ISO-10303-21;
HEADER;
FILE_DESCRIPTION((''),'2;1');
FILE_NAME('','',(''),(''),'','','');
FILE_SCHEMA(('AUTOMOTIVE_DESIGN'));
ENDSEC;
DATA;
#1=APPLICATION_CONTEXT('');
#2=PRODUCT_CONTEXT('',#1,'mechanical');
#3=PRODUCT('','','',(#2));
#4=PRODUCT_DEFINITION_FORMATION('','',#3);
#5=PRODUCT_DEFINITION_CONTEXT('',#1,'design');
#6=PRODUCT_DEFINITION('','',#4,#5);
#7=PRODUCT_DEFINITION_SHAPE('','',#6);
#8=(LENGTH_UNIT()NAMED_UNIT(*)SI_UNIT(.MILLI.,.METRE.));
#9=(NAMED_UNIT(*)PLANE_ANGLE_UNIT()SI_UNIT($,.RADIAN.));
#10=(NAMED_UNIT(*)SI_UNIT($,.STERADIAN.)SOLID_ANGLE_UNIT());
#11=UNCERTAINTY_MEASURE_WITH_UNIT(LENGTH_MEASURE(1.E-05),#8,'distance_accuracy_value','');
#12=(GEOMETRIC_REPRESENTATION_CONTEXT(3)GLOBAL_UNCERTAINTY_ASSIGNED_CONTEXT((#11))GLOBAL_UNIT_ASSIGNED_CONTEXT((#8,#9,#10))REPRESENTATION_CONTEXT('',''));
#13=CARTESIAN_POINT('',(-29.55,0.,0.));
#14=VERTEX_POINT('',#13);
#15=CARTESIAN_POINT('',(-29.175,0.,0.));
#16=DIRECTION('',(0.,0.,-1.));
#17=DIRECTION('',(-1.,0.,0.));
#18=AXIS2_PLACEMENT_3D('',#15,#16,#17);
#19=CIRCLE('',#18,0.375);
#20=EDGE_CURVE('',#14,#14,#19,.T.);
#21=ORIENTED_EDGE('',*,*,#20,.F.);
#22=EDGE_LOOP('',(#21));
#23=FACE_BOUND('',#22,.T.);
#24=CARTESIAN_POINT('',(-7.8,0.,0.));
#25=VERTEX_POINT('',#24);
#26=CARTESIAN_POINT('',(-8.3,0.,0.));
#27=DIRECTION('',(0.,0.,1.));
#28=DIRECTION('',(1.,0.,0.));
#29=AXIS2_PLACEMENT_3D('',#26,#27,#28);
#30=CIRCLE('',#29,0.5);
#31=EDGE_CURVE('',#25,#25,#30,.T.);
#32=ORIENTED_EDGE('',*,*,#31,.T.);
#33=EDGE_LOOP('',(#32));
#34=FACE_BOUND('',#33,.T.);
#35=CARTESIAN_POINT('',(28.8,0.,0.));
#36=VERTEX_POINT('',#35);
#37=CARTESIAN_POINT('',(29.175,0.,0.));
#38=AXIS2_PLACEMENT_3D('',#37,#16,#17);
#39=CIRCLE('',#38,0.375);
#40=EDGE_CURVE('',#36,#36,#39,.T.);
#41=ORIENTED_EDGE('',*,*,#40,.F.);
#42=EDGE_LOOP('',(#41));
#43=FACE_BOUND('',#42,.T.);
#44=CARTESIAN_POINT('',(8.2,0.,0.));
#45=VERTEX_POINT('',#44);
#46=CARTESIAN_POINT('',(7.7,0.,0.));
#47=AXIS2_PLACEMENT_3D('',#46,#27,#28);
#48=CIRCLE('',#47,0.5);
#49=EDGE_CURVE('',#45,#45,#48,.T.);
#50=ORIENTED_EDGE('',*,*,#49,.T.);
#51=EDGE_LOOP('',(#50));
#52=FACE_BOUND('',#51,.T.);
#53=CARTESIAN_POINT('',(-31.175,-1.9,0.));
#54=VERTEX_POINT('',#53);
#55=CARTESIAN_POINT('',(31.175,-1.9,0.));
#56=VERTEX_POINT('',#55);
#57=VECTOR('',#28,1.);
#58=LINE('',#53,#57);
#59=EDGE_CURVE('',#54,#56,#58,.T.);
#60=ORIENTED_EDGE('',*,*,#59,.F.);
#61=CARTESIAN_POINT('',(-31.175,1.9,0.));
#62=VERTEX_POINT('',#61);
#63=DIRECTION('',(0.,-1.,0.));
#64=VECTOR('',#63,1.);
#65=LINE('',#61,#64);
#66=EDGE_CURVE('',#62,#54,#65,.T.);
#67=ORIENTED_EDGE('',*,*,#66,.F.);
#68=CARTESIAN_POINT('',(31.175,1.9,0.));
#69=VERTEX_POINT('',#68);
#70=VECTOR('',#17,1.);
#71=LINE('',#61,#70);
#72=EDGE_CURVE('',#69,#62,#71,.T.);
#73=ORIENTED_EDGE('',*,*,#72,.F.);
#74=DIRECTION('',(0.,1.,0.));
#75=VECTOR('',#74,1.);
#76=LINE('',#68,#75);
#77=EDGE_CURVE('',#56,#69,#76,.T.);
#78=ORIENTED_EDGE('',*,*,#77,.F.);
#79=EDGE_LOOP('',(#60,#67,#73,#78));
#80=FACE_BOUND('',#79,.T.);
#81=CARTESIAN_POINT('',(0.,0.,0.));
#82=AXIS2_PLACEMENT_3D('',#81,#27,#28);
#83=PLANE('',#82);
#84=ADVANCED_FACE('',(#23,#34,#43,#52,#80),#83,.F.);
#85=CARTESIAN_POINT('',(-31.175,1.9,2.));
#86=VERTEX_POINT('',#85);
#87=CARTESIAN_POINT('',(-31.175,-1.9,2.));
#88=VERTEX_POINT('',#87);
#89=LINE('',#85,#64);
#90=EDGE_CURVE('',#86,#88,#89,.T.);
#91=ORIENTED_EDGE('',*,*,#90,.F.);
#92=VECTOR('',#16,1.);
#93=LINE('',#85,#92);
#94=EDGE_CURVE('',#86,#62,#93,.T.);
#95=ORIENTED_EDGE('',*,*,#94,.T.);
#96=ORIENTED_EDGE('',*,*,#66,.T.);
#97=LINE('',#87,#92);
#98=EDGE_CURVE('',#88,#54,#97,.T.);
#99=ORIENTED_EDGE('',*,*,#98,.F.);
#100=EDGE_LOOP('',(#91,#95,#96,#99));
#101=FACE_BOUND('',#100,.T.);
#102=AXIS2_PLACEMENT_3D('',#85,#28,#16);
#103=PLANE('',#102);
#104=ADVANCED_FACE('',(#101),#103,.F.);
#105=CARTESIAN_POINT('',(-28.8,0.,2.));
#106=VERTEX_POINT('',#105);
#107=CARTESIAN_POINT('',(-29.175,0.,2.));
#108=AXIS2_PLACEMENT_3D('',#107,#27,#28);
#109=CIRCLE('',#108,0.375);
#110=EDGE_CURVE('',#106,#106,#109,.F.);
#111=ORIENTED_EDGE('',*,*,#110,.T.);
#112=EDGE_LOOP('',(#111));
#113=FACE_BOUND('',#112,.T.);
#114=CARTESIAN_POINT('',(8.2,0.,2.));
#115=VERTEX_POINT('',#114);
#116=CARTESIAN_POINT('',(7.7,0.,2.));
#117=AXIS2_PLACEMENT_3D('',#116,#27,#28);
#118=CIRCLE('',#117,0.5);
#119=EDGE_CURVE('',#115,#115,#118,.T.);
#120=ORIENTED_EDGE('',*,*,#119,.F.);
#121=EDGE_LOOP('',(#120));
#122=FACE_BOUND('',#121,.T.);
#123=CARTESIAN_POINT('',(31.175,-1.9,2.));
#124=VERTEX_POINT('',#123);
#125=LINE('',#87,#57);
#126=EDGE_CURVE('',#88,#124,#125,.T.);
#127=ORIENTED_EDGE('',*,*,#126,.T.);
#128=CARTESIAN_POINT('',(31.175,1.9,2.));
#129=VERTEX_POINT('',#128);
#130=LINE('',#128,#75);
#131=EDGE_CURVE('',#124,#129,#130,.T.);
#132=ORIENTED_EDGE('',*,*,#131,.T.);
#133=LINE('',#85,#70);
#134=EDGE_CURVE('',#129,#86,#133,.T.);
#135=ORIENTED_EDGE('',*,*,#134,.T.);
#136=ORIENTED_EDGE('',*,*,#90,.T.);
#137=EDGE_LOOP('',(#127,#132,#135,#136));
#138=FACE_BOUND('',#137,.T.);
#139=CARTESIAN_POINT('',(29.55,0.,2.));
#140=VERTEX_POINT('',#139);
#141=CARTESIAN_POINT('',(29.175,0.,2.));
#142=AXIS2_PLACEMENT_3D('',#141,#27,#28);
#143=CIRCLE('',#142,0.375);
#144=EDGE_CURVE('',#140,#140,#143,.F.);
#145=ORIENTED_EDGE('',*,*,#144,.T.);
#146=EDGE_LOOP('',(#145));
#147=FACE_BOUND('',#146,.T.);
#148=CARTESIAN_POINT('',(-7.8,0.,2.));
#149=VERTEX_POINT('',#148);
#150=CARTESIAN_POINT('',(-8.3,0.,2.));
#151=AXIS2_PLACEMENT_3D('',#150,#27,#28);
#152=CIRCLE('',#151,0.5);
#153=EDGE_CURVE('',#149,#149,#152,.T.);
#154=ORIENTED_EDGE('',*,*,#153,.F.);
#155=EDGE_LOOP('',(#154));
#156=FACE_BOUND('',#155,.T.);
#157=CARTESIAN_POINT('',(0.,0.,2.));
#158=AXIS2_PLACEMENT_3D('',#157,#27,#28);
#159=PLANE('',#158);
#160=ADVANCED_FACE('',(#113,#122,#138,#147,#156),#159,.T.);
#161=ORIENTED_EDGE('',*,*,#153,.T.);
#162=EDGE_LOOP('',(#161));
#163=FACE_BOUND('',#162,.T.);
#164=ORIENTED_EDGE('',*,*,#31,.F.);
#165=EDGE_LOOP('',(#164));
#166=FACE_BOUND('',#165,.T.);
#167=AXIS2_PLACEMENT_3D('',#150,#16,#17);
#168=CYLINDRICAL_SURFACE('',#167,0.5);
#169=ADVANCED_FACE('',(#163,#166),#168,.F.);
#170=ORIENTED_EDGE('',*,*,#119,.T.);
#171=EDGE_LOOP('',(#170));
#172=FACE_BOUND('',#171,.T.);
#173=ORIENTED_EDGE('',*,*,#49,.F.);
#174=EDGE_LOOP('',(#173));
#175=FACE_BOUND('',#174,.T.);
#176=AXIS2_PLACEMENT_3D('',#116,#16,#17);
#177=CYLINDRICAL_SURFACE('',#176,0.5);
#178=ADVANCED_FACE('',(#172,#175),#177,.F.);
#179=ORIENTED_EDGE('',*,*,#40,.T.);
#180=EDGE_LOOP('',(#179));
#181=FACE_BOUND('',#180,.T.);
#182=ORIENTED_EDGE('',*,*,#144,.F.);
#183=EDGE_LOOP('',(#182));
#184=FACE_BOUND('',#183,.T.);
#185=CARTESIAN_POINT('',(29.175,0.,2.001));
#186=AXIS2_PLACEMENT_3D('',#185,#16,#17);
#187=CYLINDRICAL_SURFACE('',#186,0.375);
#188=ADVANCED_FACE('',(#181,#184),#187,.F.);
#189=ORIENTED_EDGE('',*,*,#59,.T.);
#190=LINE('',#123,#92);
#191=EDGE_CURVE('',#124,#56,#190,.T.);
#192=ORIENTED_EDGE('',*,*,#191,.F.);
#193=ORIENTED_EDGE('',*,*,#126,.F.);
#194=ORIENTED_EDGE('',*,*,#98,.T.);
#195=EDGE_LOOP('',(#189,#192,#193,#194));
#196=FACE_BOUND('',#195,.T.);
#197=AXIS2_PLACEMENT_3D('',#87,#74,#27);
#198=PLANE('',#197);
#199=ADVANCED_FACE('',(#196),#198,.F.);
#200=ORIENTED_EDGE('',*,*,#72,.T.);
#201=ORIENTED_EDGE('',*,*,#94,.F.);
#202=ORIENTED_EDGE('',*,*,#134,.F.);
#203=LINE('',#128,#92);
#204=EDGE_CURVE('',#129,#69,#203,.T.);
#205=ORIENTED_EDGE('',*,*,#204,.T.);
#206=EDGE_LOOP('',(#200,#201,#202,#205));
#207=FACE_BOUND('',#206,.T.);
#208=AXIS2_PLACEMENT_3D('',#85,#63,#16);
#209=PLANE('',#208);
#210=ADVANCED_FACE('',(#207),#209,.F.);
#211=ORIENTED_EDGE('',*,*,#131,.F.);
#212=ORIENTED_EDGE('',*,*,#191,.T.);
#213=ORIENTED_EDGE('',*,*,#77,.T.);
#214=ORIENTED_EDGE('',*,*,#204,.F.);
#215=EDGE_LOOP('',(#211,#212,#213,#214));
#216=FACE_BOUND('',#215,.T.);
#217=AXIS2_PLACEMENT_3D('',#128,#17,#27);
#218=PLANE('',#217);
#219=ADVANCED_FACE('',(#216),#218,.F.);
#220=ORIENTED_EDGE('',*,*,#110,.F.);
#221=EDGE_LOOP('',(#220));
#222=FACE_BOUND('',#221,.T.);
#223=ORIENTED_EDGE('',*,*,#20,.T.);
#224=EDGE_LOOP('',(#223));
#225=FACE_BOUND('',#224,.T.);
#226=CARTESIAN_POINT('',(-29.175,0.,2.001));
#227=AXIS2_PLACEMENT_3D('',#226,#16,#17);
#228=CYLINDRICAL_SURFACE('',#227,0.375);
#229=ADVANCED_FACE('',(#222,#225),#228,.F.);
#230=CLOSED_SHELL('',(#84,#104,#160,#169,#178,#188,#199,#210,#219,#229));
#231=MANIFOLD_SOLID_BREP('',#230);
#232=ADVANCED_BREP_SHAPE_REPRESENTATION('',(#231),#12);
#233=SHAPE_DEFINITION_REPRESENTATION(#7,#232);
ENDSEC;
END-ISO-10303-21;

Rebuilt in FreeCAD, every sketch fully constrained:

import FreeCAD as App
import Part
import Sketcher

V = App.Vector
Q = App.Units.Quantity

doc = App.newDocument("Part")
body = doc.addObject("PartDesign::Body", "Body")

# Sketch on XY plane
sketch1 = body.newObject("Sketcher::SketchObject", "Sketch")
sketch1.AttachmentSupport = (doc.getObject("XY_Plane"), [""])
sketch1.MapMode = "FlatFace"
sketch1.addGeometry([
    Part.LineSegment(V(-31.2, 1.9, 0), V(-31.2, -1.9, 0)),  # 0
    Part.LineSegment(V(-31.2, -1.9, 0), V(31.2, -1.9, 0)),  # 1
    Part.LineSegment(V(31.2, -1.9, 0), V(31.2, 1.9, 0)),  # 2
    Part.LineSegment(V(31.2, 1.9, 0), V(-31.2, 1.9, 0)),  # 3
    Part.Circle(V(-8.3, 0, 0), V(0, 0, 1), 0.5),  # 4
    Part.Circle(V(7.7, 0, 0), V(0, 0, 1), 0.5),  # 5
], False)
sketch1.addConstraint([
    Sketcher.Constraint("Coincident", 0, 2, 1, 1),
    Sketcher.Constraint("Coincident", 1, 2, 2, 1),
    Sketcher.Constraint("Coincident", 2, 2, 3, 1),
    Sketcher.Constraint("Coincident", 3, 2, 0, 1),
    Sketcher.Constraint("Vertical", 0),
    Sketcher.Constraint("Horizontal", 1),
    Sketcher.Constraint("Vertical", 2),
    Sketcher.Constraint("Horizontal", 3),
    Sketcher.Constraint("Equal", 4, 5),
    Sketcher.Constraint("Symmetric", 0, 2, 2, 2, -1, 1),
    Sketcher.Constraint("PointOnObject", 4, 3, -1),
    Sketcher.Constraint("PointOnObject", 5, 3, -1),
    Sketcher.Constraint("Diameter", 4, Q("1 mm")),
    Sketcher.Constraint("DistanceY", 0, 2, 0, 1, Q("3.8 mm")),
    Sketcher.Constraint("DistanceX", 4, 3, 5, 3, Q("16 mm")),
    Sketcher.Constraint("DistanceX", 1, 1, 1, 2, Q("62.35 mm")),
    Sketcher.Constraint("DistanceX", 4, 3, -1, 1, Q("8.3 mm")),
])
pad1 = body.newObject("PartDesign::Pad", "Pad")
pad1.Profile = sketch1
pad1.Length = 2

# Sketch on XY plane
sketch2 = body.newObject("Sketcher::SketchObject", "Sketch001")
sketch2.AttachmentSupport = (doc.getObject("XY_Plane"), [""])
sketch2.MapMode = "FlatFace"
sketch2.addGeometry(Part.Circle(V(-29.18, 0, 0), V(0, 0, 1), 0.38), False)
sketch2.addConstraint([
    Sketcher.Constraint("PointOnObject", 0, 3, -1),
    Sketcher.Constraint("Diameter", 0, Q("0.75 mm")),
    Sketcher.Constraint("DistanceX", 0, 3, -1, 1, Q("29.175 mm")),
])
pocket1 = body.newObject("PartDesign::Pocket", "Pocket")
pocket1.Profile = sketch2
pocket1.Type = "UpToFirst"
pocket1.Reversed = True

# Sketch on XY plane
sketch3 = body.newObject("Sketcher::SketchObject", "Sketch002")
sketch3.AttachmentSupport = (doc.getObject("XY_Plane"), [""])
sketch3.MapMode = "FlatFace"
sketch3.addGeometry(Part.Circle(V(29.18, 0, 0), V(0, 0, 1), 0.38), False)
sketch3.addConstraint([
    Sketcher.Constraint("PointOnObject", 0, 3, -1),
    Sketcher.Constraint("Diameter", 0, Q("0.75 mm")),
    Sketcher.Constraint("DistanceX", -1, 1, 0, 3, Q("29.175 mm")),
])
pocket2 = body.newObject("PartDesign::Pocket", "Pocket001")
pocket2.Profile = sketch3
pocket2.Type = "UpToFirst"
pocket2.Reversed = True

doc.recompute()
